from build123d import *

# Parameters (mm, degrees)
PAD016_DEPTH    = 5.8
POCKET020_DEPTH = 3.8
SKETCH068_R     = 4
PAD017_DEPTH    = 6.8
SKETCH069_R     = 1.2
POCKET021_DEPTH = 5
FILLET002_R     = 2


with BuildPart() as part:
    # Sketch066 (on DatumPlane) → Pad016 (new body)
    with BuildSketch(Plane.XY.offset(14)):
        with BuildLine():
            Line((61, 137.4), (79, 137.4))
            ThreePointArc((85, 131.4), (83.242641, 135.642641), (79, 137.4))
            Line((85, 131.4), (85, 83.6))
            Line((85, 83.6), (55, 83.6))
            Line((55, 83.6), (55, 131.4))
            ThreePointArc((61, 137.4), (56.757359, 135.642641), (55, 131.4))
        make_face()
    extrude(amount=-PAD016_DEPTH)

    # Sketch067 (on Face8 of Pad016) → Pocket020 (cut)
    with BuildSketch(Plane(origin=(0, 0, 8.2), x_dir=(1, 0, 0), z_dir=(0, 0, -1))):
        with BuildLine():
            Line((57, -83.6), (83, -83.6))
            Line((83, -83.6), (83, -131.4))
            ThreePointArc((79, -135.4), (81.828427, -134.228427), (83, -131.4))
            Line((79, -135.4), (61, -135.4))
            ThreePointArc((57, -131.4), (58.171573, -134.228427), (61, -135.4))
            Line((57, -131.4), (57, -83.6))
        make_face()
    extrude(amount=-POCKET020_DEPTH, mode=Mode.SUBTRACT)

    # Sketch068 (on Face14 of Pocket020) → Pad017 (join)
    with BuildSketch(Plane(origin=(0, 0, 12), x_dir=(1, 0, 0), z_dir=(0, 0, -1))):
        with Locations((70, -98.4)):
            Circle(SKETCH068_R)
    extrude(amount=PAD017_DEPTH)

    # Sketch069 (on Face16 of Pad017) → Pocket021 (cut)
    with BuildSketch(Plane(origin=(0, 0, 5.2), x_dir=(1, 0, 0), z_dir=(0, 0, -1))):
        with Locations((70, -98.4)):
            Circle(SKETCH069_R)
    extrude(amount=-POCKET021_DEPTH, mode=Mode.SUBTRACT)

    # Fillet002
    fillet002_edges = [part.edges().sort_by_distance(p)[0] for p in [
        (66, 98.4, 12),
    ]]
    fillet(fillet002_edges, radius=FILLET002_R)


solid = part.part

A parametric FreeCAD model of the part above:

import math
import FreeCAD as App
import Part
import Sketcher
Q = App.Units.Quantity


def edges_at(feature, points):
    """Names of the edges that pass closest to the given points."""
    edges = feature.Shape.Edges
    near = lambda p: min(range(len(edges)), key=lambda i: edges[i].distToShape(Part.Vertex(*p))[0])
    return sorted({f"Edge{near(p) + 1}" for p in points})

doc = App.newDocument("Part")
body = doc.addObject("PartDesign::Body", "Body")

# Sketch on XY plane
sketch1 = doc.addObject("Sketcher::SketchObject", "Sketch")
body.addObject(sketch1)
sketch1.AttachmentSupport = (doc.XY_Plane, [""])
sketch1.MapMode = "FlatFace"
sketch1.AttachmentOffset = App.Placement(App.Vector(0, 0, 14), App.Rotation())
sketch1.addGeometry([
    Part.LineSegment(App.Vector(79, 137, 0), App.Vector(61, 137, 0)),  # 0
    Part.ArcOfCircle(Part.Circle(App.Vector(61, 131, 0), App.Vector(0, 0, 1), 6), math.radians(90), math.radians(180)),  # 1
    Part.LineSegment(App.Vector(55, 131, 0), App.Vector(55, 84, 0)),  # 2
    Part.LineSegment(App.Vector(55, 84, 0), App.Vector(85, 84, 0)),  # 3
    Part.LineSegment(App.Vector(85, 84, 0), App.Vector(85, 131, 0)),  # 4
    Part.ArcOfCircle(Part.Circle(App.Vector(79, 131, 0), App.Vector(0, 0, 1), 6), math.radians(0), math.radians(90)),  # 5
], False)
sketch1.addConstraint([
    Sketcher.Constraint("Tangent", 0, 2, 1, 1),
    Sketcher.Constraint("Tangent", 1, 2, 2, 1),
    Sketcher.Constraint("Coincident", 2, 2, 3, 1),
    Sketcher.Constraint("Coincident", 3, 2, 4, 1),
    Sketcher.Constraint("Tangent", 4, 2, 5, 1),
    Sketcher.Constraint("Tangent", 5, 2, 0, 1),
    Sketcher.Constraint("Horizontal", 0),
    Sketcher.Constraint("Vertical", 2),
    Sketcher.Constraint("Horizontal", 3),
    Sketcher.Constraint("Vertical", 4),
    Sketcher.Constraint("Equal", 1, 5),
    Sketcher.Constraint("Radius", 1, Q("5.999999 mm")),
    Sketcher.Constraint("DistanceX", 0, 2, 0, 1, Q("18 mm")),
    Sketcher.Constraint("DistanceY", 2, 2, 2, 1, Q("47.8 mm")),
    Sketcher.Constraint("DistanceX", -1, 1, 1, 3, Q("60.999999 mm")),
    Sketcher.Constraint("DistanceY", -1, 1, 1, 3, Q("131.400001 mm")),
])
pad1 = doc.addObject("PartDesign::Pad", "Pad")
body.addObject(pad1)
pad1.Profile = sketch1
pad1.Length = 5.8
pad1.Reversed = True

# Sketch on XY plane
sketch2 = doc.addObject("Sketcher::SketchObject", "Sketch001")
body.addObject(sketch2)
sketch2.AttachmentSupport = (doc.XY_Plane, [""])
sketch2.MapMode = "FlatFace"
sketch2.AttachmentOffset = App.Placement(App.Vector(0, 0, 8.2), App.Rotation())
sketch2.addGeometry([
    Part.LineSegment(App.Vector(83, 83.6, 0), App.Vector(57, 83.6, 0)),  # 0
    Part.LineSegment(App.Vector(57, 83.6, 0), App.Vector(57, 131.4, 0)),  # 1
    Part.ArcOfCircle(Part.Circle(App.Vector(61, 131.4, 0), App.Vector(0, 0, 1), 4), math.radians(90), math.radians(180)),  # 2
    Part.LineSegment(App.Vector(61, 135.4, 0), App.Vector(79, 135.4, 0)),  # 3
    Part.ArcOfCircle(Part.Circle(App.Vector(79, 131.4, 0), App.Vector(0, 0, 1), 4), math.radians(0), math.radians(90)),  # 4
    Part.LineSegment(App.Vector(83, 131.4, 0), App.Vector(83, 83.6, 0)),  # 5
], False)
sketch2.addConstraint([
    Sketcher.Constraint("Coincident", 0, 2, 1, 1),
    Sketcher.Constraint("Tangent", 1, 2, 2, 2),
    Sketcher.Constraint("Tangent", 2, 1, 3, 1),
    Sketcher.Constraint("Tangent", 3, 2, 4, 2),
    Sketcher.Constraint("Tangent", 4, 1, 5, 1),
    Sketcher.Constraint("Coincident", 5, 2, 0, 1),
    Sketcher.Constraint("Horizontal", 0),
    Sketcher.Constraint("Vertical", 1),
    Sketcher.Constraint("Horizontal", 3),
    Sketcher.Constraint("Vertical", 5),
    Sketcher.Constraint("Equal", 2, 4),
    Sketcher.Constraint("Radius", 2, Q("4 mm")),
    Sketcher.Constraint("DistanceX", 0, 2, 0, 1, Q("26 mm")),
    Sketcher.Constraint("DistanceY", 1, 1, 1, 2, Q("47.8 mm")),
    Sketcher.Constraint("DistanceX", -1, 1, 2, 3, Q("61 mm")),
    Sketcher.Constraint("DistanceY", -1, 1, 2, 3, Q("131.4 mm")),
])
pocket1 = doc.addObject("PartDesign::Pocket", "Pocket")
body.addObject(pocket1)
pocket1.Profile = sketch2
pocket1.Length = 3.8
pocket1.Reversed = True

# Sketch on XY plane
sketch3 = doc.addObject("Sketcher::SketchObject", "Sketch002")
body.addObject(sketch3)
sketch3.AttachmentSupport = (doc.XY_Plane, [""])
sketch3.MapMode = "FlatFace"
sketch3.AttachmentOffset = App.Placement(App.Vector(0, 0, 12), App.Rotation())
sketch3.addGeometry(Part.Circle(App.Vector(70, 98.4, 0), App.Vector(0, 0, 1), 4), False)
sketch3.addConstraint([
    Sketcher.Constraint("Diameter", 0, Q("8 mm")),
    Sketcher.Constraint("DistanceX", -1, 1, 0, 3, Q("70 mm")),
    Sketcher.Constraint("DistanceY", -1, 1, 0, 3, Q("98.4 mm")),
])
pad2 = doc.addObject("PartDesign::Pad", "Pad001")
body.addObject(pad2)
pad2.Profile = sketch3
pad2.Length = 6.8
pad2.Reversed = True

# Sketch on XY plane
sketch4 = doc.addObject("Sketcher::SketchObject", "Sketch003")
body.addObject(sketch4)
sketch4.AttachmentSupport = (doc.XY_Plane, [""])
sketch4.MapMode = "FlatFace"
sketch4.AttachmentOffset = App.Placement(App.Vector(0, 0, 5.2), App.Rotation())
sketch4.addGeometry(Part.Circle(App.Vector(70, 98.4, 0), App.Vector(0, 0, 1), 1.2), False)
sketch4.addConstraint([
    Sketcher.Constraint("Diameter", 0, Q("2.4 mm")),
    Sketcher.Constraint("DistanceX", -1, 1, 0, 3, Q("70 mm")),
    Sketcher.Constraint("DistanceY", -1, 1, 0, 3, Q("98.4 mm")),
])
pocket2 = doc.addObject("PartDesign::Pocket", "Pocket001")
body.addObject(pocket2)
pocket2.Profile = sketch4
pocket2.Length = 5
pocket2.Reversed = True
doc.recompute()

fillet = doc.addObject("PartDesign::Fillet", "Fillet")
body.addObject(fillet)
fillet.Base = (pocket2, edges_at(pocket2, [(66, 98.4, 12)]))
fillet.Radius = 2

doc.recompute()
